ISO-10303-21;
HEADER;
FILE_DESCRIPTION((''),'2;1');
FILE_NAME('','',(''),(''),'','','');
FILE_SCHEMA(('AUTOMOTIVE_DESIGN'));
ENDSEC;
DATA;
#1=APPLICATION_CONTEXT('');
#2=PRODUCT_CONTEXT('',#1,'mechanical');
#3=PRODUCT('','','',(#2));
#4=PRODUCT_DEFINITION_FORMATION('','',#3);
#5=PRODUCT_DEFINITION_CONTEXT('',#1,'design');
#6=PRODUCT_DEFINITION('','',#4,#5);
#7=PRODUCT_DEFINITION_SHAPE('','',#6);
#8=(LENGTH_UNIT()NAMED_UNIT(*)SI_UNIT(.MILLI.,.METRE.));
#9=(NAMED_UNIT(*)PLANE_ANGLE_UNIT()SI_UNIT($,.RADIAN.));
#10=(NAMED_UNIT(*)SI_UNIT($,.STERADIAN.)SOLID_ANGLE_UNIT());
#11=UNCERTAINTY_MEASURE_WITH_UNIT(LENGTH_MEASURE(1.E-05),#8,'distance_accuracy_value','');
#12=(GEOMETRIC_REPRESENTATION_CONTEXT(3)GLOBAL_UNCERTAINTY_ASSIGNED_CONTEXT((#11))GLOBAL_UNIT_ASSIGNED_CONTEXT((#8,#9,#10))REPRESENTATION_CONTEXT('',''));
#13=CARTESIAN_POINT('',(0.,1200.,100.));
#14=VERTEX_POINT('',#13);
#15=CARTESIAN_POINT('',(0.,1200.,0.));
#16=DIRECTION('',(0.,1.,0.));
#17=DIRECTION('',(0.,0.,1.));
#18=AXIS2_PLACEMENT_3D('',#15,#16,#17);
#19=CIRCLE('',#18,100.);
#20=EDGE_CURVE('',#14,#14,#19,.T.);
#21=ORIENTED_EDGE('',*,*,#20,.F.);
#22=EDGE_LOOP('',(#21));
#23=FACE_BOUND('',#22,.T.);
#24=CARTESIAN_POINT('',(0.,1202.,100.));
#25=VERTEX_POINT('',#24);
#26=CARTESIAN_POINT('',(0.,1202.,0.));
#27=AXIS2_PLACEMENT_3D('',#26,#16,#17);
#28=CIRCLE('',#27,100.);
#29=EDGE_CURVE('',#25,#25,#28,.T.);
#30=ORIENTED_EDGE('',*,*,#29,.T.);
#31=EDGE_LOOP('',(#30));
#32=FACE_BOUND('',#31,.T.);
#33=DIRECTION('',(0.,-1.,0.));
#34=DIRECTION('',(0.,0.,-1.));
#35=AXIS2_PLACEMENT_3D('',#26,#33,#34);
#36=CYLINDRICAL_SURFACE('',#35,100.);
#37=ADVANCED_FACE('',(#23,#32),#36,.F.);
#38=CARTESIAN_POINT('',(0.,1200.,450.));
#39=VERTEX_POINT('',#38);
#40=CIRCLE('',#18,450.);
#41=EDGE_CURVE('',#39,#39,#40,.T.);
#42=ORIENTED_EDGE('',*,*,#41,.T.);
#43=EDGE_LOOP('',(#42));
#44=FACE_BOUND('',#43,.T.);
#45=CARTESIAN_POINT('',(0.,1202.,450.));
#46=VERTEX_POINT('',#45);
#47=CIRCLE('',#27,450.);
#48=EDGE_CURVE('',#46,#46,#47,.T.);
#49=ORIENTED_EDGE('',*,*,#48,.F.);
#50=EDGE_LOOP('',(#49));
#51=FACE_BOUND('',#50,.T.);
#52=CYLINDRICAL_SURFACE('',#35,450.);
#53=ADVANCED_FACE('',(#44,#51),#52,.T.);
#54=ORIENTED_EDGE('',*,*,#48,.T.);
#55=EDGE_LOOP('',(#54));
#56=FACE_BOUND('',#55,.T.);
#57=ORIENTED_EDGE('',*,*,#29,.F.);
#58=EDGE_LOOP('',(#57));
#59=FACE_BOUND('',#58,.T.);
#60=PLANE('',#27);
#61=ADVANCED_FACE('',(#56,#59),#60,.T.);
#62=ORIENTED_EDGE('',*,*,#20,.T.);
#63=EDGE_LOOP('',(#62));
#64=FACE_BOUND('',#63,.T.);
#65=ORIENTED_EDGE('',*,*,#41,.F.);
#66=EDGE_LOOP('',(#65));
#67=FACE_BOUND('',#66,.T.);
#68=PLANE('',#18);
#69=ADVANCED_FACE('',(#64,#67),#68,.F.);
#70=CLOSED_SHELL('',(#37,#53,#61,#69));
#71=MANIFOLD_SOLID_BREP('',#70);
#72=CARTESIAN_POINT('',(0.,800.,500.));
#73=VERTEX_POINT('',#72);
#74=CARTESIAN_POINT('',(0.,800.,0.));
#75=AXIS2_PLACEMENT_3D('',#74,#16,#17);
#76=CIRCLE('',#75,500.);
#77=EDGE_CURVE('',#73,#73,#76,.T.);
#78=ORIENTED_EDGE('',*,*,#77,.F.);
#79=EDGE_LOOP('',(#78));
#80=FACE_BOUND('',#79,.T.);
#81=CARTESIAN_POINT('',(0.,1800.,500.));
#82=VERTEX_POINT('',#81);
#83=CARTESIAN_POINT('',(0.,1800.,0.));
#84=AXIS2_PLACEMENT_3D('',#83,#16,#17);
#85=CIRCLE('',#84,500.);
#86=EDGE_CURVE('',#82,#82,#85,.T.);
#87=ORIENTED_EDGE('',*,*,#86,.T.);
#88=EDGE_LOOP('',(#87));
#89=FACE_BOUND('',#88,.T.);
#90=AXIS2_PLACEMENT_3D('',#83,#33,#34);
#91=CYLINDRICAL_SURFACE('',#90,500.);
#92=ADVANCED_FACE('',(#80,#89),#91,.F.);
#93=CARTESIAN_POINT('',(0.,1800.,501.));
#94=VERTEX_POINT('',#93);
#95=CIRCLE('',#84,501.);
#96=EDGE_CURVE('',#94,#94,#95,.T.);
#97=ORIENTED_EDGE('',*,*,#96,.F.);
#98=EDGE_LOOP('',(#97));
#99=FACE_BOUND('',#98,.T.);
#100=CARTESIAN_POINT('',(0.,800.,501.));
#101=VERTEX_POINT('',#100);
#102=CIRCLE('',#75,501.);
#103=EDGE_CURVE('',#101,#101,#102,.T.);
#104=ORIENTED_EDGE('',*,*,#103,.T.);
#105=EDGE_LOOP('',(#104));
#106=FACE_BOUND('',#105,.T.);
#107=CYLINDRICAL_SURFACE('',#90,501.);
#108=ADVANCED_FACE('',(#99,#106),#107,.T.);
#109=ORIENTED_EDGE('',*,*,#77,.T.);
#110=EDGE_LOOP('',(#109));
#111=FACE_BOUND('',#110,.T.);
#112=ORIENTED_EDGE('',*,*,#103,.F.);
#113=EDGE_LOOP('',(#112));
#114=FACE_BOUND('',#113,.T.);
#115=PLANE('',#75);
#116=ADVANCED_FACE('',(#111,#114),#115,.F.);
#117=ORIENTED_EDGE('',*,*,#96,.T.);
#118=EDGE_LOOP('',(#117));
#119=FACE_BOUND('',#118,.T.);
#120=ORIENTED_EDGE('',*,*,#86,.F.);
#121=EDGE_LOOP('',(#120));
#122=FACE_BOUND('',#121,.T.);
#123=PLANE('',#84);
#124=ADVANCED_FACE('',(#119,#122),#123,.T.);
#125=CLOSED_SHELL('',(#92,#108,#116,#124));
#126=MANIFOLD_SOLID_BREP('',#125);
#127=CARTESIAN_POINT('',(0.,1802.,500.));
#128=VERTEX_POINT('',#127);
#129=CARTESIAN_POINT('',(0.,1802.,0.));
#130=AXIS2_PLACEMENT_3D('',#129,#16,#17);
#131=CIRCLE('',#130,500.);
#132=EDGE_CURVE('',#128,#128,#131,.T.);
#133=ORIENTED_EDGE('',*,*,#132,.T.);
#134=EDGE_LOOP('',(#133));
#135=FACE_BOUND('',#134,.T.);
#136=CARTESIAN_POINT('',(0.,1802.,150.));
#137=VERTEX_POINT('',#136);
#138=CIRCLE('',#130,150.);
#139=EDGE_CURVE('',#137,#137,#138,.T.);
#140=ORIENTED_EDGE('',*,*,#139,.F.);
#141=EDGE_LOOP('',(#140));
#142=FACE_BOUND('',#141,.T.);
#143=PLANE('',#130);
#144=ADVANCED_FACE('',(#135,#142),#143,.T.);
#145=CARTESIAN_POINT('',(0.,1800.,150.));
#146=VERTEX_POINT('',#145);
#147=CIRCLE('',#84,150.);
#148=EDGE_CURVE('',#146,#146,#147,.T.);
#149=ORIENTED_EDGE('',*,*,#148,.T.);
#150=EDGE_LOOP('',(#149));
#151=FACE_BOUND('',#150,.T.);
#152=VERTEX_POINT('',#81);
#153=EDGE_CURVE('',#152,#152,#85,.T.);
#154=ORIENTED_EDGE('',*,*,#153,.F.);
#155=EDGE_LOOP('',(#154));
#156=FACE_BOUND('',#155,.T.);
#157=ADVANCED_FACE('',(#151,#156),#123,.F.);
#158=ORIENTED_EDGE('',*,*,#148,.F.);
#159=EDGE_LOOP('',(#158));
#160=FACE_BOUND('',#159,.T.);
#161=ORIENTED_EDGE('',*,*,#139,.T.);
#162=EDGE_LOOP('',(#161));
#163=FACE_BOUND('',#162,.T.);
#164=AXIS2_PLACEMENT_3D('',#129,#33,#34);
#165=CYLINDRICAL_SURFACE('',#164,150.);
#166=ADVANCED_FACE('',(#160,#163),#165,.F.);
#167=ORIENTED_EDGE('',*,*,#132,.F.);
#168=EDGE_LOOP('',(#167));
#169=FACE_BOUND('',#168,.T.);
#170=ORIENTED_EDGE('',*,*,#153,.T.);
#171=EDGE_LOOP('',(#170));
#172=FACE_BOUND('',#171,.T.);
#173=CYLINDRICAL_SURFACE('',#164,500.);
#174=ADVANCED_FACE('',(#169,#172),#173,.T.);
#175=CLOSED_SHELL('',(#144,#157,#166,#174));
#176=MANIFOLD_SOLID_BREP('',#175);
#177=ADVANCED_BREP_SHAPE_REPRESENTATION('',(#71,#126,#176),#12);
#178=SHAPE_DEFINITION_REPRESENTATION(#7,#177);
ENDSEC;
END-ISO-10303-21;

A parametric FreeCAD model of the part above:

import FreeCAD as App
import Part
import Sketcher
from FreeCAD import Vector
Q = App.Units.Quantity

doc = App.newDocument("Part")
body = doc.addObject("PartDesign::Body", "Body")

# Sketch on XZ plane
sketch1 = doc.addObject("Sketcher::SketchObject", "Sketch")
body.addObject(sketch1)
sketch1.AttachmentSupport = (doc.XZ_Plane, [""])
sketch1.MapMode = "FlatFace"
sketch1.AttachmentOffset = App.Placement(Vector(0, 0, -800), App.Rotation())
sketch1.addGeometry([
    Part.Circle(Vector(0, 0, 0), Vector(0, 0, 1), 501),
    Part.Circle(Vector(0, 0, 0), Vector(0, 0, 1), 500),
], False)
sketch1.addConstraint([
    Sketcher.Constraint("Coincident", 0, 3, -1, 1),
    Sketcher.Constraint("Coincident", 1, 3, -1, 1),
    Sketcher.Constraint("Diameter", 0, Q("1002 mm")),
    Sketcher.Constraint("Diameter", 1, Q("1000 mm")),
])
pad1 = doc.addObject("PartDesign::Pad", "Pad")
body.addObject(pad1)
pad1.Profile = sketch1
pad1.Length = 1000
pad1.Reversed = True
body2 = doc.addObject("PartDesign::Body", "Body001")

# Sketch on XZ plane
sketch2 = doc.addObject("Sketcher::SketchObject", "Sketch001")
body2.addObject(sketch2)
sketch2.AttachmentSupport = (doc.getObject("XZ_Plane001"), [""])
sketch2.MapMode = "FlatFace"
sketch2.AttachmentOffset = App.Placement(Vector(0, 0, -1800), App.Rotation())
sketch2.addGeometry([
    Part.Circle(Vector(0, 0, 0), Vector(0, 0, 1), 500),
    Part.Circle(Vector(0, 0, 0), Vector(0, 0, 1), 150),
], False)
sketch2.addConstraint([
    Sketcher.Constraint("Coincident", 0, 3, -1, 1),
    Sketcher.Constraint("Coincident", 1, 3, -1, 1),
    Sketcher.Constraint("Diameter", 0, Q("1000 mm")),
    Sketcher.Constraint("Diameter", 1, Q("300 mm")),
])
pad2 = doc.addObject("PartDesign::Pad", "Pad001")
body2.addObject(pad2)
pad2.Profile = sketch2
pad2.Length = 2
pad2.Reversed = True
body3 = doc.addObject("PartDesign::Body", "Body002")

# Sketch on XZ plane
sketch3 = doc.addObject("Sketcher::SketchObject", "Sketch002")
body3.addObject(sketch3)
sketch3.AttachmentSupport = (doc.getObject("XZ_Plane002"), [""])
sketch3.MapMode = "FlatFace"
sketch3.AttachmentOffset = App.Placement(Vector(0, 0, -1200), App.Rotation())
sketch3.addGeometry([
    Part.Circle(Vector(0, 0, 0), Vector(0, 0, 1), 450),
    Part.Circle(Vector(0, 0, 0), Vector(0, 0, 1), 100),
], False)
sketch3.addConstraint([
    Sketcher.Constraint("Coincident", 0, 3, -1, 1),
    Sketcher.Constraint("Coincident", 1, 3, -1, 1),
    Sketcher.Constraint("Diameter", 0, Q("900 mm")),
    Sketcher.Constraint("Diameter", 1, Q("200 mm")),
])
pad3 = doc.addObject("PartDesign::Pad", "Pad002")
body3.addObject(pad3)
pad3.Profile = sketch3
pad3.Length = 2
pad3.Reversed = True

doc.recompute()
